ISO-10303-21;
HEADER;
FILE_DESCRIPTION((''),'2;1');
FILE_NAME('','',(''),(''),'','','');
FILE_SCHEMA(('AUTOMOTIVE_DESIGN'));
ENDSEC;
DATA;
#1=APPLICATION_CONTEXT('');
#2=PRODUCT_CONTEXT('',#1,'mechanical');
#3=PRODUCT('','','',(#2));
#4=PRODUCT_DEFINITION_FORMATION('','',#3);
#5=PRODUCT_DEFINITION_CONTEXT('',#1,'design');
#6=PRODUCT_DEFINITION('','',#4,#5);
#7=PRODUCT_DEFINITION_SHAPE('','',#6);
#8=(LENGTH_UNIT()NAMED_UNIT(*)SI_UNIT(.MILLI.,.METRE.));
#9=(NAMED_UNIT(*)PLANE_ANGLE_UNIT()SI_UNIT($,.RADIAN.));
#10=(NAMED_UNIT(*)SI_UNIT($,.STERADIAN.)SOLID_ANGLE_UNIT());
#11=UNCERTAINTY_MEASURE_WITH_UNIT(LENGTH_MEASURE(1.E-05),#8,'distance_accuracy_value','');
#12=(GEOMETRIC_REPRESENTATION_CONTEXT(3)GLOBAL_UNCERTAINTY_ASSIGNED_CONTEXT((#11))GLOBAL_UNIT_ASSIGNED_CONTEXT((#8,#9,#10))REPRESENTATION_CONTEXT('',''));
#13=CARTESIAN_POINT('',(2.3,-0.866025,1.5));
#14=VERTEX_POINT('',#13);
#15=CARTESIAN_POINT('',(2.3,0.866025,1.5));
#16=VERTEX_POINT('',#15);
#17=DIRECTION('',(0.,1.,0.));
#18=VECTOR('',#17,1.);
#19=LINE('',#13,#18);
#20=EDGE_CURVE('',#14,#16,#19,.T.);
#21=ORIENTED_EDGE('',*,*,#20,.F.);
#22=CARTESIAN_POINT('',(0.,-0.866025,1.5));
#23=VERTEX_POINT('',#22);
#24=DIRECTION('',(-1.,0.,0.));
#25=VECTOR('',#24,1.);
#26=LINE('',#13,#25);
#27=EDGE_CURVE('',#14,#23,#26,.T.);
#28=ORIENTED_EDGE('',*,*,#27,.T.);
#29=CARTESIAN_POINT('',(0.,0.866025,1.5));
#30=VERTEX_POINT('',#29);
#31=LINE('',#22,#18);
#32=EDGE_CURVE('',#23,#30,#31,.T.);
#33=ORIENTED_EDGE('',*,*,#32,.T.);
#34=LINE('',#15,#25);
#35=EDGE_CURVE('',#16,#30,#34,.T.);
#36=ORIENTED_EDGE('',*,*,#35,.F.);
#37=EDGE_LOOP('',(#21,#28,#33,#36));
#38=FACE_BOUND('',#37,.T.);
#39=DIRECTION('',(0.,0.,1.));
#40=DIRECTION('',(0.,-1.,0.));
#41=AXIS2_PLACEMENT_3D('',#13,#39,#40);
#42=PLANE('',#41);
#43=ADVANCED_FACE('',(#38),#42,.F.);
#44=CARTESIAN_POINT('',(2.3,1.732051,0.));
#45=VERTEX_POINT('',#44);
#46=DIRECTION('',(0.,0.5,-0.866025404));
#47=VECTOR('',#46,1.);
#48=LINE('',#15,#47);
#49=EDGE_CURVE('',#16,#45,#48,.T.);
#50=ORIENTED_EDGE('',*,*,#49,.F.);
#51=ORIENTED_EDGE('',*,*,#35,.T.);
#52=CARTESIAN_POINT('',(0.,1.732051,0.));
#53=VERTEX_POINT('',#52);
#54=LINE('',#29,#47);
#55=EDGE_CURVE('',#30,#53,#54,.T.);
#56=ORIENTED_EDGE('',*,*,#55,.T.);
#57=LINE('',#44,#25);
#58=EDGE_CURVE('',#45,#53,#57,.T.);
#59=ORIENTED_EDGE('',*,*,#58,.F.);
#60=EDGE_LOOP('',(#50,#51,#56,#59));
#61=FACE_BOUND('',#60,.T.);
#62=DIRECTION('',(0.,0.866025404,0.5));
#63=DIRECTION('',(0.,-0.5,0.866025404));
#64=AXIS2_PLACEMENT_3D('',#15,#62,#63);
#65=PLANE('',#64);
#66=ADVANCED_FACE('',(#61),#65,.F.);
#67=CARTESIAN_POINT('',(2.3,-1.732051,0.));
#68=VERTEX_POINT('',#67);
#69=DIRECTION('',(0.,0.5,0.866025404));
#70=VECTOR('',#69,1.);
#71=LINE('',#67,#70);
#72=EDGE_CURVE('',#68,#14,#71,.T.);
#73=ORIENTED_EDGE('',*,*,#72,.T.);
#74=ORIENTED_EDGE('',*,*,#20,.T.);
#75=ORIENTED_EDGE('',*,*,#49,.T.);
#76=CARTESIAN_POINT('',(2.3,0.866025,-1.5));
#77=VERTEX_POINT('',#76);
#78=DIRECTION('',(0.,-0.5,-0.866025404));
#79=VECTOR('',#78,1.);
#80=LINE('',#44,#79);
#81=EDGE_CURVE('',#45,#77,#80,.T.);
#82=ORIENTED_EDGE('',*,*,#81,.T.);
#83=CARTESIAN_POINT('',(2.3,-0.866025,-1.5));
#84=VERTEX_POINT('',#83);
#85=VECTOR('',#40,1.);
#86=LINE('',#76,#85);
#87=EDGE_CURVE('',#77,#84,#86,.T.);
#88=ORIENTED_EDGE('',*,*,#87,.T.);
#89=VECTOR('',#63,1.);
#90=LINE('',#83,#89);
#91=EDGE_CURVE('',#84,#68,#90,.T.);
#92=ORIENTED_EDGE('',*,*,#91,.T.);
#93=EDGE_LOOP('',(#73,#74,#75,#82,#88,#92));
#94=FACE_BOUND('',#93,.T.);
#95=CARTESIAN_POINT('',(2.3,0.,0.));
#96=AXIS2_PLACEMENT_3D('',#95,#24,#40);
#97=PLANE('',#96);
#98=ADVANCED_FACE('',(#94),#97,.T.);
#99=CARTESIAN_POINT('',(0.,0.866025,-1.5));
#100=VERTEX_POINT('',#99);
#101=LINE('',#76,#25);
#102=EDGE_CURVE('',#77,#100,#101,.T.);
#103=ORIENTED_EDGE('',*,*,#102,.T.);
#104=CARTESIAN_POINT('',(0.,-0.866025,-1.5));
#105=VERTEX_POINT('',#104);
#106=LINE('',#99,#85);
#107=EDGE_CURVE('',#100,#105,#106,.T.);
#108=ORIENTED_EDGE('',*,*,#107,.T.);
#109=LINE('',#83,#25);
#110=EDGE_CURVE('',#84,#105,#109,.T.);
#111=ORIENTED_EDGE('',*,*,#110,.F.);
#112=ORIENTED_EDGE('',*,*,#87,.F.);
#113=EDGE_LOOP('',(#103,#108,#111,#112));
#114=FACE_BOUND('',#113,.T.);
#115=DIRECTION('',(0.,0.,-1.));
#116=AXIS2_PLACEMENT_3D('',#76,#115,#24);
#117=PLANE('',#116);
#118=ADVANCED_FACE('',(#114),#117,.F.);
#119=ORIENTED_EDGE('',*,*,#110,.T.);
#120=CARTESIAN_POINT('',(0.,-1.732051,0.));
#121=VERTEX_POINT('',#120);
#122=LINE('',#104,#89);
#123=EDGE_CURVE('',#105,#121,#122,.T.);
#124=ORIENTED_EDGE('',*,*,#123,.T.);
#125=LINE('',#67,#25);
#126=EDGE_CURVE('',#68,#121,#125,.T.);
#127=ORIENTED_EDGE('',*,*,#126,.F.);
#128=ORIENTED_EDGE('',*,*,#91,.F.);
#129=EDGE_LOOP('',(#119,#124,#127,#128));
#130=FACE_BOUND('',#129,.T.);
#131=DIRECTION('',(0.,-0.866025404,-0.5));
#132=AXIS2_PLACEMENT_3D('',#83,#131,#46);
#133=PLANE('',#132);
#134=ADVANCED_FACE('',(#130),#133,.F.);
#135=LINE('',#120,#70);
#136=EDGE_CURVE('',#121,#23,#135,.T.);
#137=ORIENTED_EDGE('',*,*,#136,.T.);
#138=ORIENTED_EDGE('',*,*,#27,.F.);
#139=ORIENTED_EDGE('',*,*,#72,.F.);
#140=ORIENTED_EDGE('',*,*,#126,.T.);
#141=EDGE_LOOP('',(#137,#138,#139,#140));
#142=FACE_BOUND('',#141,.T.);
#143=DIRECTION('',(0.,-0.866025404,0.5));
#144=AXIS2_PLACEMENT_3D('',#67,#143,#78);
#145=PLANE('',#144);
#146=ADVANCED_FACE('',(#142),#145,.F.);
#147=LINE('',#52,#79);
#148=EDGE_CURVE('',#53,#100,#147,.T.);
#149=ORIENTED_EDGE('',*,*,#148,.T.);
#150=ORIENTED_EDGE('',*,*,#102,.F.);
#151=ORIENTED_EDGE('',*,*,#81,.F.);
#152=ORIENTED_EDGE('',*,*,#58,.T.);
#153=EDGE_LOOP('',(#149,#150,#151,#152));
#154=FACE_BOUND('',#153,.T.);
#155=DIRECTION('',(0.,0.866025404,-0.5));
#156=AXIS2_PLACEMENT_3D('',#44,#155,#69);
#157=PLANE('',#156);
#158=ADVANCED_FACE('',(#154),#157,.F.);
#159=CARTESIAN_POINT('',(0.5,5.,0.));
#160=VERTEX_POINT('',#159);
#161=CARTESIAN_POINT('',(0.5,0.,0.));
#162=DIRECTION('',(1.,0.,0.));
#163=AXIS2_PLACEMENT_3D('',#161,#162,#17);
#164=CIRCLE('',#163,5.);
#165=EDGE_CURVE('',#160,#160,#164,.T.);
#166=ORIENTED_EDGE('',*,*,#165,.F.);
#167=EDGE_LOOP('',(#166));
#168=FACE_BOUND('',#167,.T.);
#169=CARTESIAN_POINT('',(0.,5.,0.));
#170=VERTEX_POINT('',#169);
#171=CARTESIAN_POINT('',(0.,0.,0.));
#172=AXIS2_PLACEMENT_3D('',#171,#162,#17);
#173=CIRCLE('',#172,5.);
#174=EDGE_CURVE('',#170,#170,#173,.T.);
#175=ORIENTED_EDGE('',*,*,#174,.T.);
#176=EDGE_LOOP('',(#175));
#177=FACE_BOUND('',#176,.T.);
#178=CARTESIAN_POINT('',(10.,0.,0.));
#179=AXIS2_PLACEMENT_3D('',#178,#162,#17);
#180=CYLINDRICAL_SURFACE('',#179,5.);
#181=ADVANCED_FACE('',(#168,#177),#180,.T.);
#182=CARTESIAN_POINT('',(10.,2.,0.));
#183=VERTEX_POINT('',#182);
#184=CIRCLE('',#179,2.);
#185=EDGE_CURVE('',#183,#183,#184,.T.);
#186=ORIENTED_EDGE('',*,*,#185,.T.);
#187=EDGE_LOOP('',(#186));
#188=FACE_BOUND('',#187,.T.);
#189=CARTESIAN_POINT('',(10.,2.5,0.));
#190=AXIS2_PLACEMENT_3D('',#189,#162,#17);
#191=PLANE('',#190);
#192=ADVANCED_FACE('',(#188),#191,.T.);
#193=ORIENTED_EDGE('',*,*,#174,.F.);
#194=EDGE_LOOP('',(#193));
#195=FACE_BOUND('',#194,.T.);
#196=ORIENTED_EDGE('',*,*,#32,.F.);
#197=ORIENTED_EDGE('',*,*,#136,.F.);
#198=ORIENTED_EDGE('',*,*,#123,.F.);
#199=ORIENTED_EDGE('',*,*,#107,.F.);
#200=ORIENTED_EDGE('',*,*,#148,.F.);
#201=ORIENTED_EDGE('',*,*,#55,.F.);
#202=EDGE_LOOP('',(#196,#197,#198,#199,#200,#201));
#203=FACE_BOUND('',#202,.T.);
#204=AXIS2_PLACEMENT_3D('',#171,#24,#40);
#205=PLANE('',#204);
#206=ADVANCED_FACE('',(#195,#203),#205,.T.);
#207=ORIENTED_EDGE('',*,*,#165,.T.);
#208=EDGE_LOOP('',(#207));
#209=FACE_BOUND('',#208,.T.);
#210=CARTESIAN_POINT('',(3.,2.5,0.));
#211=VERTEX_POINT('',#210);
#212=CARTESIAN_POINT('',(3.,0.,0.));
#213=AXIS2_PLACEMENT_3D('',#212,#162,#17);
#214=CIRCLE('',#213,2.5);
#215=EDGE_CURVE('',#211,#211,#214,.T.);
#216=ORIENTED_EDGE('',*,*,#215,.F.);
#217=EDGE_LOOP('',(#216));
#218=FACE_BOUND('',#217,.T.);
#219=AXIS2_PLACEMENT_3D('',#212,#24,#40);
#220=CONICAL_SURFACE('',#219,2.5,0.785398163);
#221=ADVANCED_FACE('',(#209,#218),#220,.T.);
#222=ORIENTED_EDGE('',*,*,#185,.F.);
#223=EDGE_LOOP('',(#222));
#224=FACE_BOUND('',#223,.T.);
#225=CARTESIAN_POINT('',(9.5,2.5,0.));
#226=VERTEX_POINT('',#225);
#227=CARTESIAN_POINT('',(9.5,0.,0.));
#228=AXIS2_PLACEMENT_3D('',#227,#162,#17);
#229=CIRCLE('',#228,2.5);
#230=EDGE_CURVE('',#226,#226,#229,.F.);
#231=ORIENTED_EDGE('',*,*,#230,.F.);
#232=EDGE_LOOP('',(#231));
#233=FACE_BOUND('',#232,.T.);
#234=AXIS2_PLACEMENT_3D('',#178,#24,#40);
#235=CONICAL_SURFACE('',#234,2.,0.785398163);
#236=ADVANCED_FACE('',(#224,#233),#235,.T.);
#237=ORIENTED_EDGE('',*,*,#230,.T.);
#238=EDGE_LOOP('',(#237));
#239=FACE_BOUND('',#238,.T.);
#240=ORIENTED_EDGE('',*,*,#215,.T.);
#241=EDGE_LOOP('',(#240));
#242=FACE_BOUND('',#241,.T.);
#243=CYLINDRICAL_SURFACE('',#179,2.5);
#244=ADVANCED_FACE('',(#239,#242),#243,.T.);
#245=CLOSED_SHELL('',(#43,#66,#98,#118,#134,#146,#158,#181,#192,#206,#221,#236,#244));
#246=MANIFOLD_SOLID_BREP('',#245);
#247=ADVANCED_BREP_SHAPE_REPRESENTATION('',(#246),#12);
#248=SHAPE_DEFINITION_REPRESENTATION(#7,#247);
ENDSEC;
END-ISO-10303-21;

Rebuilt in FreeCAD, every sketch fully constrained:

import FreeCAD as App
import Part
import Sketcher
Q = App.Units.Quantity


def edges_at(feature, points):
    """Names of the edges that pass closest to the given points."""
    edges = feature.Shape.Edges
    near = lambda p: min(range(len(edges)), key=lambda i: edges[i].distToShape(Part.Vertex(*p))[0])
    return sorted({f"Edge{near(p) + 1}" for p in points})

doc = App.newDocument("Part")
body = doc.addObject("PartDesign::Body", "Body")

# Sketch on XY plane
sketch1 = body.newObject("Sketcher::SketchObject", "Sketch")
sketch1.AttachmentSupport = (doc.getObject("XY_Plane"), [""])
sketch1.MapMode = "FlatFace"
sketch1.addGeometry([
    Part.LineSegment(App.Vector(0, 5, 0), App.Vector(0, 0, 0)),  # 0
    Part.LineSegment(App.Vector(0, 0, 0), App.Vector(10, 0, 0)),  # 1
    Part.LineSegment(App.Vector(10, 0, 0), App.Vector(10, 2.5, 0)),  # 2
    Part.LineSegment(App.Vector(10, 2.5, 0), App.Vector(3, 2.5, 0)),  # 3
    Part.LineSegment(App.Vector(3, 2.5, 0), App.Vector(0.5, 5, 0)),  # 4
    Part.LineSegment(App.Vector(0.5, 5, 0), App.Vector(0, 5, 0)),  # 5
], False)
sketch1.addConstraint([
    Sketcher.Constraint("Coincident", 0, 2, 1, 1),
    Sketcher.Constraint("Coincident", 1, 2, 2, 1),
    Sketcher.Constraint("Coincident", 2, 2, 3, 1),
    Sketcher.Constraint("Coincident", 3, 2, 4, 1),
    Sketcher.Constraint("Coincident", 4, 2, 5, 1),
    Sketcher.Constraint("Coincident", 5, 2, 0, 1),
    Sketcher.Constraint("Vertical", 0),
    Sketcher.Constraint("Horizontal", 1),
    Sketcher.Constraint("Vertical", 2),
    Sketcher.Constraint("Horizontal", 3),
    Sketcher.Constraint("Horizontal", 5),
    Sketcher.Constraint("Coincident", 0, 2, -1, 1),
    Sketcher.Constraint("DistanceX", 1, 1, 1, 2, Q("10 mm")),
    Sketcher.Constraint("DistanceX", 3, 2, 3, 1, Q("7 mm")),
    Sketcher.Constraint("DistanceY", 0, 2, 0, 1, Q("5 mm")),
    Sketcher.Constraint("Angle", 4, Q("135 deg")),
    Sketcher.Constraint("DistanceX", 5, 2, 5, 1, Q("0.5 mm")),
])
revolution = body.newObject("PartDesign::Revolution", "Revolution")
revolution.Profile = sketch1
revolution.ReferenceAxis = (sketch1, ["H_Axis"])
revolution.Angle = 360
doc.recompute()

chamfer = body.newObject("PartDesign::Chamfer", "Chamfer")
chamfer.Base = (revolution, edges_at(revolution, [(10, -2.5, 0)]))
chamfer.Size = 0.5

# Sketch on YZ plane
sketch2 = body.newObject("Sketcher::SketchObject", "Sketch001")
sketch2.AttachmentSupport = (doc.getObject("YZ_Plane"), [""])
sketch2.MapMode = "FlatFace"
sketch2.addGeometry([
    Part.LineSegment(App.Vector(1.732051, 0, 0), App.Vector(0.866025, -1.5, 0)),  # 0
    Part.LineSegment(App.Vector(0.866025, -1.5, 0), App.Vector(-0.866025, -1.5, 0)),  # 1
    Part.LineSegment(App.Vector(-0.866025, -1.5, 0), App.Vector(-1.732051, 0, 0)),  # 2
    Part.LineSegment(App.Vector(-1.732051, 0, 0), App.Vector(-0.866025, 1.5, 0)),  # 3
    Part.LineSegment(App.Vector(-0.866025, 1.5, 0), App.Vector(0.866025, 1.5, 0)),  # 4
    Part.LineSegment(App.Vector(0.866025, 1.5, 0), App.Vector(1.732051, 0, 0)),  # 5
], False)
sketch2.addConstraint([
    Sketcher.Constraint("Coincident", 0, 2, 1, 1),
    Sketcher.Constraint("Coincident", 1, 2, 2, 1),
    Sketcher.Constraint("Coincident", 2, 2, 3, 1),
    Sketcher.Constraint("Coincident", 3, 2, 4, 1),
    Sketcher.Constraint("Coincident", 4, 2, 5, 1),
    Sketcher.Constraint("Coincident", 5, 2, 0, 1),
    Sketcher.Constraint("Horizontal", 1),
    Sketcher.Constraint("Horizontal", 4),
    Sketcher.Constraint("Symmetric", 0, 2, 3, 2, -1, 1),
    Sketcher.Constraint("Symmetric", 2, 2, 5, 2, -1, 1),
    Sketcher.Constraint("PointOnObject", 2, 2, -1),
    Sketcher.Constraint("Parallel", 2, 5),
    Sketcher.Constraint("Vertical", 1, 2, 3, 2),
    Sketcher.Constraint("Angle", 0, Q("-120 deg")),
    Sketcher.Constraint("DistanceY", 1, 2, 3, 2, Q("3 mm")),
    Sketcher.Constraint("DistanceX", 1, 2, 1, 1, Q("1.732051 mm")),
])
pocket1 = body.newObject("PartDesign::Pocket", "Pocket")
pocket1.Profile = sketch2
pocket1.Length = 2.3
pocket1.Reversed = True

doc.recompute()
